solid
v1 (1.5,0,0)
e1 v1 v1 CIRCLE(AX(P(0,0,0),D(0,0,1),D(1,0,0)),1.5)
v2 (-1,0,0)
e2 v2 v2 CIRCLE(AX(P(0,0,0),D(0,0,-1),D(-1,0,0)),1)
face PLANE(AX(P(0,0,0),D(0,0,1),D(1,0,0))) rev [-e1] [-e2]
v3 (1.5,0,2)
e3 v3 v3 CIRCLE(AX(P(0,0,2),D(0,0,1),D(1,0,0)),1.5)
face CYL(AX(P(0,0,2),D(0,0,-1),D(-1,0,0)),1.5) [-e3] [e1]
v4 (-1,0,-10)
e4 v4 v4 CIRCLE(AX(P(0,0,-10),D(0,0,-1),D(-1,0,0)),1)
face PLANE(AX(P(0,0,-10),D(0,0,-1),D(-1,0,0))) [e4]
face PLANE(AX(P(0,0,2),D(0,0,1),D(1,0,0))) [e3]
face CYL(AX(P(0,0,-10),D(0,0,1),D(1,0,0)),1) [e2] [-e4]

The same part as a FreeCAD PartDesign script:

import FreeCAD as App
import Part
import Sketcher
Q = App.Units.Quantity

doc = App.newDocument("Part")
params = doc.addObject("Spreadsheet::Sheet", "Params")
for row, (alias, value) in enumerate([
    ("sketch1_diameter", "3 mm"),
    ("pad1_length", "2 mm"),
    ("sketch2_diameter", "2 mm"),
    ("pad2_length", "10 mm"),
], start=1):
    params.set(f"A{row}", alias)
    params.set(f"B{row}", "=" + value)
    params.setAlias(f"B{row}", alias)

body = doc.addObject("PartDesign::Body", "Body")

# Sketch on XY plane
sketch1 = body.newObject("Sketcher::SketchObject", "Sketch")
sketch1.AttachmentSupport = (doc.getObject("XY_Plane"), [""])
sketch1.MapMode = "FlatFace"
sketch1.addGeometry(Part.Circle(App.Vector(0, 0, 0), App.Vector(0, 0, 1), 1.5), False)
sketch1.addConstraint([
    Sketcher.Constraint("Coincident", 0, 3, -1, 1),
    Sketcher.Constraint("Diameter", 0, Q("3 mm")),
])
sketch1.setExpression("Constraints[1]", "Params.sketch1_diameter")
pad1 = body.newObject("PartDesign::Pad", "Pad")
pad1.Profile = sketch1
pad1.setExpression("Length", "Params.pad1_length")

# Sketch on XY plane
sketch2 = body.newObject("Sketcher::SketchObject", "Sketch001")
sketch2.AttachmentSupport = (doc.getObject("XY_Plane"), [""])
sketch2.MapMode = "FlatFace"
sketch2.addGeometry(Part.Circle(App.Vector(0, 0, 0), App.Vector(0, 0, 1), 1), False)
sketch2.addConstraint([
    Sketcher.Constraint("Coincident", 0, 3, -1, 1),
    Sketcher.Constraint("Diameter", 0, Q("2 mm")),
])
sketch2.setExpression("Constraints[1]", "Params.sketch2_diameter")
pad2 = body.newObject("PartDesign::Pad", "Pad001")
pad2.Profile = sketch2
pad2.setExpression("Length", "Params.pad2_length")
pad2.Reversed = True

doc.recompute()
